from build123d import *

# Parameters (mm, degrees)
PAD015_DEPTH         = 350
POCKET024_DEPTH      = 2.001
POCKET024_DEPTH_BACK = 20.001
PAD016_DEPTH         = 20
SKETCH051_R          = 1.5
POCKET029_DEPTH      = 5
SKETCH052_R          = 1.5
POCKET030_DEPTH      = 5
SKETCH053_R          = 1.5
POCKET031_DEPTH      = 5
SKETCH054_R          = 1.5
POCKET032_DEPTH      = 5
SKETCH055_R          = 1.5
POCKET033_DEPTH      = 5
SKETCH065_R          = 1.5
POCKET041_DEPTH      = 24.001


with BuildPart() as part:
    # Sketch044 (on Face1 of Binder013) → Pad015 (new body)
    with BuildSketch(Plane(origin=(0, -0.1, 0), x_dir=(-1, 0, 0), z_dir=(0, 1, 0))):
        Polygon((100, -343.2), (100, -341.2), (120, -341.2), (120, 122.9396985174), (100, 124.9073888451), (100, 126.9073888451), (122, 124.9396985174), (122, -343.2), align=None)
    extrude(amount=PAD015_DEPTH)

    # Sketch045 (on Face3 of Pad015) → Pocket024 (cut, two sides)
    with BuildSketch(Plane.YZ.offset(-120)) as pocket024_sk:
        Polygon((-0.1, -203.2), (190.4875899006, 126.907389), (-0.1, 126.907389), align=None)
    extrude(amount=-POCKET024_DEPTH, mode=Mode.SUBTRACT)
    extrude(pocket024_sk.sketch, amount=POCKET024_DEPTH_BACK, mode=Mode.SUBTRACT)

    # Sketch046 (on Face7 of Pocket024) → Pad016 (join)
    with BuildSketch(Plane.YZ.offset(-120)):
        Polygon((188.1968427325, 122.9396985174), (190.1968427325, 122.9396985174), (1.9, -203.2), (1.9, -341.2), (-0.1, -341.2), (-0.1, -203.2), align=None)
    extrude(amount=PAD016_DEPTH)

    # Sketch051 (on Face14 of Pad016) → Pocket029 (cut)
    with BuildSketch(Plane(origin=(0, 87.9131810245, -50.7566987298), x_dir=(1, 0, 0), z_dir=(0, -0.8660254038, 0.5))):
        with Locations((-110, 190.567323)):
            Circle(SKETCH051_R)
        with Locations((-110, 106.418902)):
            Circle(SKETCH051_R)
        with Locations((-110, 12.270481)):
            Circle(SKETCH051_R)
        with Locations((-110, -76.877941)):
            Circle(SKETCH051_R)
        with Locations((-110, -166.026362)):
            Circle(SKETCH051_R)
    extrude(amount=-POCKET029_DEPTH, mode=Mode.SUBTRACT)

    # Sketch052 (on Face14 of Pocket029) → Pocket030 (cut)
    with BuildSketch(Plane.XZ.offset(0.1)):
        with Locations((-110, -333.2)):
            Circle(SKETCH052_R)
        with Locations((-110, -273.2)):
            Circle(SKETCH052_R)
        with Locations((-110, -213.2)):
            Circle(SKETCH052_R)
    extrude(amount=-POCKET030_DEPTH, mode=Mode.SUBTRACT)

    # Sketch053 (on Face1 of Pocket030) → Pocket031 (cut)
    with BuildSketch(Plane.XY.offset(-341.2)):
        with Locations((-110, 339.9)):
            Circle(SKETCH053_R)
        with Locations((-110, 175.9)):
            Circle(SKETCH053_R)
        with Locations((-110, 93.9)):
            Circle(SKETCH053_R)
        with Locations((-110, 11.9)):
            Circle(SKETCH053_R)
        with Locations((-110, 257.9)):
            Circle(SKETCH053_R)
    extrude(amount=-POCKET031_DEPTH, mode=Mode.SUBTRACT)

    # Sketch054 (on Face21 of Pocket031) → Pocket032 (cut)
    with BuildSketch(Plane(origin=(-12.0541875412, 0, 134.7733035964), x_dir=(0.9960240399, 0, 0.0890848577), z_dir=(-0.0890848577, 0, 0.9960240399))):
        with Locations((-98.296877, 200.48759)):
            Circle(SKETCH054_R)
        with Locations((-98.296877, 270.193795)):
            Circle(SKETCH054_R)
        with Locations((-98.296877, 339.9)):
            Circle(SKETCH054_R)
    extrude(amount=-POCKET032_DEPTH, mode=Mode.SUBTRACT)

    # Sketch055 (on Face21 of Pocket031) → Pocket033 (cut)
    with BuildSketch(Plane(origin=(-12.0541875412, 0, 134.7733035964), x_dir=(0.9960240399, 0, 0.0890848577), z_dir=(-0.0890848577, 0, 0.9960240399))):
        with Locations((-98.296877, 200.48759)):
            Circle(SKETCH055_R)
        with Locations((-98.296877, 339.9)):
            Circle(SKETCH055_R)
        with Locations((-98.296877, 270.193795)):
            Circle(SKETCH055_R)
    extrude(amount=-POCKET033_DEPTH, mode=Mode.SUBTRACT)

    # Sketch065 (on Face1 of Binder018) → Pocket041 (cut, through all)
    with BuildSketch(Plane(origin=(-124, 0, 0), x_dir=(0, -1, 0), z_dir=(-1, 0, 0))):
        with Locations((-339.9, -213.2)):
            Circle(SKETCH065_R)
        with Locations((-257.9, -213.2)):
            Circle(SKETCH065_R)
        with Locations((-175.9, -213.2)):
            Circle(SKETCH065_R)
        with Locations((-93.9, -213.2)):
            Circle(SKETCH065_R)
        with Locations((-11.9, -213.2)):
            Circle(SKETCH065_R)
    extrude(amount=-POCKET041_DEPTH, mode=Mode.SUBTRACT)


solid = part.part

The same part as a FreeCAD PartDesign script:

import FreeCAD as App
import Part
import Sketcher

V = App.Vector
Q = App.Units.Quantity

doc = App.newDocument("Part")
body = doc.addObject("PartDesign::Body", "Body")

sketch1 = doc.addObject("Sketcher::SketchObject", "Sketch")
body.addObject(sketch1)
sketch1.AttachmentSupport = (doc.XZ_Plane, [""])
sketch1.MapMode = "FlatFace"
sketch1.AttachmentOffset = App.Placement(V(0, 0, 0.1), App.Rotation())
sketch1.addGeometry([
    Part.LineSegment(V(-100, -341.2, 0), V(-100, -343.2, 0)),
    Part.LineSegment(V(-100, -343.2, 0), V(-122, -343.2, 0)),
    Part.LineSegment(V(-122, -343.2, 0), V(-122, 124.9, 0)),
    Part.LineSegment(V(-122, 124.9, 0), V(-100, 126.9, 0)),
    Part.LineSegment(V(-100, 126.9, 0), V(-100, 124.9, 0)),
    Part.LineSegment(V(-100, 124.9, 0), V(-120, 122.9, 0)),
    Part.LineSegment(V(-120, 122.9, 0), V(-120, -341.2, 0)),
    Part.LineSegment(V(-120, -341.2, 0), V(-100, -341.2, 0)),
], False)
sketch1.addConstraint([
    Sketcher.Constraint("Coincident", 0, 2, 1, 1),
    Sketcher.Constraint("Coincident", 1, 2, 2, 1),
    Sketcher.Constraint("Coincident", 2, 2, 3, 1),
    Sketcher.Constraint("Coincident", 3, 2, 4, 1),
    Sketcher.Constraint("Coincident", 4, 2, 5, 1),
    Sketcher.Constraint("Coincident", 5, 2, 6, 1),
    Sketcher.Constraint("Coincident", 6, 2, 7, 1),
    Sketcher.Constraint("Coincident", 7, 2, 0, 1),
    Sketcher.Constraint("Vertical", 0),
    Sketcher.Constraint("Horizontal", 1),
    Sketcher.Constraint("Vertical", 2),
    Sketcher.Constraint("Vertical", 4),
    Sketcher.Constraint("Vertical", 6),
    Sketcher.Constraint("Horizontal", 7),
    Sketcher.Constraint("Vertical", 0, 2, 3, 2),
    Sketcher.Constraint("Equal", 0, 4),
    Sketcher.Constraint("DistanceX", 1, 2, 1, 1, Q("22 mm")),
    Sketcher.Constraint("DistanceX", 7, 1, 7, 2, Q("20 mm")),
    Sketcher.Constraint("DistanceY", 0, 2, 0, 1, Q("2 mm")),
    Sketcher.Constraint("DistanceX", 0, 2, -1, 1, Q("100 mm")),
    Sketcher.Constraint("DistanceY", 5, 2, 2, 2, Q("2 mm")),
    Sketcher.Constraint("DistanceY", 0, 2, -1, 1, Q("343.2 mm")),
    Sketcher.Constraint("DistanceY", 2, 1, 2, 2, Q("468.139699 mm")),
    Sketcher.Constraint("Distance", 3, Q("22.08782 mm")),
])
pad1 = doc.addObject("PartDesign::Pad", "Pad")
body.addObject(pad1)
pad1.Profile = sketch1
pad1.Length = 350
pad1.Reversed = True

sketch2 = doc.addObject("Sketcher::SketchObject", "Sketch001")
body.addObject(sketch2)
sketch2.AttachmentSupport = (doc.YZ_Plane, [""])
sketch2.MapMode = "FlatFace"
sketch2.AttachmentOffset = App.Placement(V(0, 0, -120), App.Rotation())
sketch2.addGeometry([
    Part.LineSegment(V(0, -203, 0), V(190, 127, 0)),
    Part.LineSegment(V(190, 127, 0), V(0, 127, 0)),
    Part.LineSegment(V(0, 127, 0), V(0, -203, 0)),
], False)
sketch2.addConstraint([
    Sketcher.Constraint("Coincident", 0, 2, 1, 1),
    Sketcher.Constraint("Coincident", 1, 2, 2, 1),
    Sketcher.Constraint("Coincident", 2, 2, 0, 1),
    Sketcher.Constraint("Horizontal", 1),
    Sketcher.Constraint("Vertical", 2),
    Sketcher.Constraint("Angle", 0, Q("60 deg")),
    Sketcher.Constraint("DistanceX", 1, 2, -1, 1, Q("0.1 mm")),
    Sketcher.Constraint("DistanceY", 2, 2, -1, 1, Q("203.2 mm")),
    Sketcher.Constraint("DistanceX", 1, 2, 1, 1, Q("190.58759 mm")),
])
pocket1 = doc.addObject("PartDesign::Pocket", "Pocket")
body.addObject(pocket1)
pocket1.Profile = sketch2
pocket1.Type = "ThroughAll"
pocket1.Midplane = True

sketch3 = doc.addObject("Sketcher::SketchObject", "Sketch002")
body.addObject(sketch3)
sketch3.AttachmentSupport = (doc.YZ_Plane, [""])
sketch3.MapMode = "FlatFace"
sketch3.AttachmentOffset = App.Placement(V(0, 0, -120), App.Rotation())
sketch3.addGeometry([
    Part.LineSegment(V(190.2, 122.9, 0), V(188.2, 122.9, 0)),
    Part.LineSegment(V(188.2, 122.9, 0), V(-0.1, -203.2, 0)),
    Part.LineSegment(V(-0.1, -203.2, 0), V(-0.1, -341.2, 0)),
    Part.LineSegment(V(-0.1, -341.2, 0), V(1.9, -341.2, 0)),
    Part.LineSegment(V(1.9, -341.2, 0), V(1.9, -203.2, 0)),
    Part.LineSegment(V(1.9, -203.2, 0), V(190.2, 122.9, 0)),
], False)
sketch3.addConstraint([
    Sketcher.Constraint("Coincident", 0, 2, 1, 1),
    Sketcher.Constraint("Coincident", 1, 2, 2, 1),
    Sketcher.Constraint("Coincident", 2, 2, 3, 1),
    Sketcher.Constraint("Coincident", 3, 2, 4, 1),
    Sketcher.Constraint("Coincident", 4, 2, 5, 1),
    Sketcher.Constraint("Coincident", 5, 2, 0, 1),
    Sketcher.Constraint("Horizontal", 0),
    Sketcher.Constraint("Vertical", 2),
    Sketcher.Constraint("Horizontal", 3),
    Sketcher.Constraint("Vertical", 4),
    Sketcher.Constraint("Parallel", 1, 5),
    Sketcher.Constraint("Horizontal", 1, 2, 4, 2),
    Sketcher.Constraint("DistanceX", 0, 2, 0, 1, Q("2 mm")),
    Sketcher.Constraint("DistanceY", 2, 2, 2, 1, Q("138 mm")),
    Sketcher.Constraint("Angle", 1, Q("-120 deg")),
    Sketcher.Constraint("DistanceX", 1, 2, -1, 1, Q("0.1 mm")),
    Sketcher.Constraint("DistanceY", 1, 2, -1, 1, Q("203.2 mm")),
    Sketcher.Constraint("DistanceY", -1, 1, 0, 2, Q("122.939699 mm")),
])
pad2 = doc.addObject("PartDesign::Pad", "Pad001")
body.addObject(pad2)
pad2.Profile = sketch3
pad2.Length = 20

sketch4 = doc.addObject("Sketcher::SketchObject", "Sketch003")
body.addObject(sketch4)
sketch4.Placement = App.Placement(V(0, 87.913181, -50.756699), App.Rotation(V(1, 0, 0), V(0, 0.5, 0.866025404), V(0, -0.866025404, 0.5), "ZXY"))
sketch4.addGeometry([
    Part.Circle(V(-110, 190.6, 0), V(0, 0, 1), 1.5),
    Part.Circle(V(-110, 106.4, 0), V(0, 0, 1), 1.5),
    Part.Circle(V(-110, 12.3, 0), V(0, 0, 1), 1.5),
    Part.Circle(V(-110, -76.9, 0), V(0, 0, 1), 1.5),
    Part.Circle(V(-110, -166, 0), V(0, 0, 1), 1.5),
], False)
sketch4.addConstraint([
    Sketcher.Constraint("Equal", 0, 1),
    Sketcher.Constraint("Equal", 1, 2),
    Sketcher.Constraint("Equal", 2, 3),
    Sketcher.Constraint("Equal", 3, 4),
    Sketcher.Constraint("Vertical", 0, 3, 1, 3),
    Sketcher.Constraint("Vertical", 1, 3, 2, 3),
    Sketcher.Constraint("Vertical", 2, 3, 3, 3),
    Sketcher.Constraint("Vertical", 3, 3, 4, 3),
    Sketcher.Constraint("Diameter", 0, Q("3 mm")),
    Sketcher.Constraint("DistanceX", 0, 3, -1, 1, Q("110 mm")),
    Sketcher.Constraint("DistanceY", -1, 1, 2, 3, Q("12.270481 mm")),
    Sketcher.Constraint("DistanceY", 3, 3, -1, 1, Q("76.877941 mm")),
    Sketcher.Constraint("DistanceY", 1, 3, 0, 3, Q("84.148421 mm")),
    Sketcher.Constraint("DistanceY", 2, 3, 1, 3, Q("94.148421 mm")),
    Sketcher.Constraint("DistanceY", 4, 3, 3, 3, Q("89.148421 mm")),
])
pocket2 = doc.addObject("PartDesign::Pocket", "Pocket001")
body.addObject(pocket2)
pocket2.Profile = sketch4
pocket2.Length = 5

sketch5 = doc.addObject("Sketcher::SketchObject", "Sketch004")
body.addObject(sketch5)
sketch5.AttachmentSupport = (doc.XZ_Plane, [""])
sketch5.MapMode = "FlatFace"
sketch5.AttachmentOffset = App.Placement(V(0, 0, 0.1), App.Rotation())
sketch5.addGeometry([
    Part.Circle(V(-110, -333.2, 0), V(0, 0, 1), 1.5),
    Part.Circle(V(-110, -273.2, 0), V(0, 0, 1), 1.5),
    Part.Circle(V(-110, -213.2, 0), V(0, 0, 1), 1.5),
], False)
sketch5.addConstraint([
    Sketcher.Constraint("Equal", 0, 1),
    Sketcher.Constraint("Equal", 1, 2),
    Sketcher.Constraint("Vertical", 0, 3, 1, 3),
    Sketcher.Constraint("Vertical", 1, 3, 2, 3),
    Sketcher.Constraint("Diameter", 0, Q("3 mm")),
    Sketcher.Constraint("DistanceX", 0, 3, -1, 1, Q("110 mm")),
    Sketcher.Constraint("DistanceY", 0, 3, 1, 3, Q("60 mm")),
    Sketcher.Constraint("DistanceY", 1, 3, 2, 3, Q("60 mm")),
    Sketcher.Constraint("DistanceY", 0, 3, -1, 1, Q("333.2 mm")),
])
pocket3 = doc.addObject("PartDesign::Pocket", "Pocket002")
body.addObject(pocket3)
pocket3.Profile = sketch5
pocket3.Length = 5

sketch6 = doc.addObject("Sketcher::SketchObject", "Sketch005")
body.addObject(sketch6)
sketch6.AttachmentSupport = (doc.XY_Plane, [""])
sketch6.MapMode = "FlatFace"
sketch6.AttachmentOffset = App.Placement(V(0, 0, -341.2), App.Rotation())
sketch6.addGeometry([
    Part.Circle(V(-110, 339.9, 0), V(0, 0, 1), 1.5),
    Part.Circle(V(-110, 175.9, 0), V(0, 0, 1), 1.5),
    Part.Circle(V(-110, 93.9, 0), V(0, 0, 1), 1.5),
    Part.Circle(V(-110, 11.9, 0), V(0, 0, 1), 1.5),
    Part.Circle(V(-110, 257.9, 0), V(0, 0, 1), 1.5),
], False)
sketch6.addConstraint([
    Sketcher.Constraint("Equal", 0, 1),
    Sketcher.Constraint("Equal", 1, 2),
    Sketcher.Constraint("Equal", 2, 3),
    Sketcher.Constraint("Equal", 3, 4),
    Sketcher.Constraint("Vertical", 0, 3, 1, 3),
    Sketcher.Constraint("Vertical", 1, 3, 2, 3),
    Sketcher.Constraint("Vertical", 2, 3, 3, 3),
    Sketcher.Constraint("Vertical", 3, 3, 4, 3),
    Sketcher.Constraint("Diameter", 0, Q("3 mm")),
    Sketcher.Constraint("DistanceX", 0, 3, -1, 1, Q("110 mm")),
    Sketcher.Constraint("DistanceY", 1, 3, 0, 3, Q("164 mm")),
    Sketcher.Constraint("DistanceY", 2, 3, 1, 3, Q("82 mm")),
    Sketcher.Constraint("DistanceY", 3, 3, 2, 3, Q("82 mm")),
    Sketcher.Constraint("DistanceY", 1, 3, 4, 3, Q("82 mm")),
    Sketcher.Constraint("DistanceY", -1, 1, 0, 3, Q("339.9 mm")),
])
pocket4 = doc.addObject("PartDesign::Pocket", "Pocket003")
body.addObject(pocket4)
pocket4.Profile = sketch6
pocket4.Length = 5

sketch7 = doc.addObject("Sketcher::SketchObject", "Sketch006")
body.addObject(sketch7)
sketch7.Placement = App.Placement(V(-12.054188, 0, 134.773304), App.Rotation(V(0.99602404, 0, 0.089084858), V(0, 1, 0), V(-0.089084858, 0, 0.99602404), "ZXY"))
sketch7.addGeometry([
    Part.Circle(V(-98.3, 200.5, 0), V(0, 0, 1), 1.5),
    Part.Circle(V(-98.3, 270.2, 0), V(0, 0, 1), 1.5),
    Part.Circle(V(-98.3, 339.9, 0), V(0, 0, 1), 1.5),
], False)
sketch7.addConstraint([
    Sketcher.Constraint("Equal", 0, 1),
    Sketcher.Constraint("Equal", 1, 2),
    Sketcher.Constraint("Vertical", 0, 3, 1, 3),
    Sketcher.Constraint("Vertical", 1, 3, 2, 3),
    Sketcher.Constraint("Diameter", 0, Q("3 mm")),
    Sketcher.Constraint("DistanceY", -1, 1, 2, 3, Q("339.9 mm")),
    Sketcher.Constraint("DistanceY", -1, 1, 0, 3, Q("200.48759 mm")),
    Sketcher.Constraint("DistanceX", 0, 3, -1, 1, Q("98.296877 mm")),
    Sketcher.Constraint("DistanceY", -1, 1, 1, 3, Q("270.193795 mm")),
])
pocket5 = doc.addObject("PartDesign::Pocket", "Pocket004")
body.addObject(pocket5)
pocket5.Profile = sketch7
pocket5.Length = 5

sketch8 = doc.addObject("Sketcher::SketchObject", "Sketch007")
body.addObject(sketch8)
sketch8.Placement = App.Placement(V(-12.054188, 0, 134.773304), App.Rotation(V(0.99602404, 0, 0.089084858), V(0, 1, 0), V(-0.089084858, 0, 0.99602404), "ZXY"))
sketch8.addGeometry([
    Part.Circle(V(-98.3, 200.5, 0), V(0, 0, 1), 1.5),
    Part.Circle(V(-98.3, 339.9, 0), V(0, 0, 1), 1.5),
    Part.Circle(V(-98.3, 270.2, 0), V(0, 0, 1), 1.5),
], False)
sketch8.addConstraint([
    Sketcher.Constraint("Equal", 0, 1),
    Sketcher.Constraint("Equal", 1, 2),
    Sketcher.Constraint("Vertical", 0, 3, 1, 3),
    Sketcher.Constraint("Vertical", 1, 3, 2, 3),
    Sketcher.Constraint("Diameter", 0, Q("3 mm")),
    Sketcher.Constraint("DistanceY", -1, 1, 1, 3, Q("339.9 mm")),
    Sketcher.Constraint("DistanceY", -1, 1, 0, 3, Q("200.48759 mm")),
    Sketcher.Constraint("DistanceX", 0, 3, -1, 1, Q("98.296877 mm")),
    Sketcher.Constraint("DistanceY", -1, 1, 2, 3, Q("270.193795 mm")),
])
pocket6 = doc.addObject("PartDesign::Pocket", "Pocket005")
body.addObject(pocket6)
pocket6.Profile = sketch8
pocket6.Length = 5

sketch9 = doc.addObject("Sketcher::SketchObject", "Sketch008")
body.addObject(sketch9)
sketch9.AttachmentSupport = (doc.YZ_Plane, [""])
sketch9.MapMode = "FlatFace"
sketch9.AttachmentOffset = App.Placement(V(0, 0, -124), App.Rotation())
sketch9.addGeometry([
    Part.Circle(V(339.9, -213.2, 0), V(0, 0, 1), 1.5),
    Part.Circle(V(257.9, -213.2, 0), V(0, 0, 1), 1.5),
    Part.Circle(V(175.9, -213.2, 0), V(0, 0, 1), 1.5),
    Part.Circle(V(93.9, -213.2, 0), V(0, 0, 1), 1.5),
    Part.Circle(V(11.9, -213.2, 0), V(0, 0, 1), 1.5),
], False)
sketch9.addConstraint([
    Sketcher.Constraint("Equal", 0, 1),
    Sketcher.Constraint("Equal", 1, 2),
    Sketcher.Constraint("Equal", 2, 3),
    Sketcher.Constraint("Equal", 3, 4),
    Sketcher.Constraint("Horizontal", 0, 3, 1, 3),
    Sketcher.Constraint("Horizontal", 1, 3, 2, 3),
    Sketcher.Constraint("Horizontal", 2, 3, 3, 3),
    Sketcher.Constraint("Horizontal", 3, 3, 4, 3),
    Sketcher.Constraint("Diameter", 0, Q("3 mm")),
    Sketcher.Constraint("DistanceX", 1, 3, 0, 3, Q("82 mm")),
    Sketcher.Constraint("DistanceX", 2, 3, 1, 3, Q("82 mm")),
    Sketcher.Constraint("DistanceX", 3, 3, 2, 3, Q("82 mm")),
    Sketcher.Constraint("DistanceX", 4, 3, 3, 3, Q("82 mm")),
    Sketcher.Constraint("DistanceX", -1, 1, 0, 3, Q("339.9 mm")),
    Sketcher.Constraint("DistanceY", 0, 3, -1, 1, Q("213.2 mm")),
])
pocket7 = doc.addObject("PartDesign::Pocket", "Pocket006")
body.addObject(pocket7)
pocket7.Profile = sketch9
pocket7.Type = "ThroughAll"
pocket7.Reversed = True

doc.recompute()
